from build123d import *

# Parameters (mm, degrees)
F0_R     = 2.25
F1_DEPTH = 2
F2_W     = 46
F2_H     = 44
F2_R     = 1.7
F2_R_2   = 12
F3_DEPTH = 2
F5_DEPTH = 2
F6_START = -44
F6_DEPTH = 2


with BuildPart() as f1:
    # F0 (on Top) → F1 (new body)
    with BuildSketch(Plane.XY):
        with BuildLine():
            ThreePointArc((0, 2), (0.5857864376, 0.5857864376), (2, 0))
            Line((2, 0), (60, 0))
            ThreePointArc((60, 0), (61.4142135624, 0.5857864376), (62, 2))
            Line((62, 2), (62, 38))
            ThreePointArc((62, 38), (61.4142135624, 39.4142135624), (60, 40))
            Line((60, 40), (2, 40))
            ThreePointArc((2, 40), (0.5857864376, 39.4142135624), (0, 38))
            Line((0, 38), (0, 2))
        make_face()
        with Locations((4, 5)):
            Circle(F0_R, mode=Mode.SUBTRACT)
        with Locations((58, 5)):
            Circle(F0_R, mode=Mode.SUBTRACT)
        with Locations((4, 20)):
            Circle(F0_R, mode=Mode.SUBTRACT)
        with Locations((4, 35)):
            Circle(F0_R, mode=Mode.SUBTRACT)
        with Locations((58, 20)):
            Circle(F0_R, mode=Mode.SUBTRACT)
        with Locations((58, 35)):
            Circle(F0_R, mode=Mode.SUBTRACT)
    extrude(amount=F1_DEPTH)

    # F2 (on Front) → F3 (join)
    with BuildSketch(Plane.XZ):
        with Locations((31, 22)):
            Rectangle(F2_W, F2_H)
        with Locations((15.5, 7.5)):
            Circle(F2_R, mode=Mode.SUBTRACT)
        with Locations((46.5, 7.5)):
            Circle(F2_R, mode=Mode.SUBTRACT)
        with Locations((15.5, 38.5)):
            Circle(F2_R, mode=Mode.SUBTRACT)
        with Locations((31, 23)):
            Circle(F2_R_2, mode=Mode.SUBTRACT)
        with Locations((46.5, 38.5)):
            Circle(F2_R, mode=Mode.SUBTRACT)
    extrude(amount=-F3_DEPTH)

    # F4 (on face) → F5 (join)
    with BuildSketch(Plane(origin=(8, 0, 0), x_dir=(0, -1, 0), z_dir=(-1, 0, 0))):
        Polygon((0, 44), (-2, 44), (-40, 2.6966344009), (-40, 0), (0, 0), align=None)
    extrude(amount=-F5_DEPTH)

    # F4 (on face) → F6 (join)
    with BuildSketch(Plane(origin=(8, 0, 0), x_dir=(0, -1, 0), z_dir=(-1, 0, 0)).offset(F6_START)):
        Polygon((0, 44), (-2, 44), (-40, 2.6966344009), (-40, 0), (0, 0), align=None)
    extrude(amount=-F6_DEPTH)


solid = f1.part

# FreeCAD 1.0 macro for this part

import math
import FreeCAD as App
import Part
import Sketcher
from FreeCAD import Vector
Q = App.Units.Quantity

doc = App.newDocument("Part")
body = doc.addObject("PartDesign::Body", "Body")

sketch1 = doc.addObject("Sketcher::SketchObject", "Sketch")
body.addObject(sketch1)
sketch1.AttachmentSupport = (doc.XY_Plane, [""])
sketch1.MapMode = "FlatFace"
sketch1.addGeometry([
    Part.ArcOfCircle(Part.Circle(Vector(2, 2, 0), Vector(0, 0, 1), 2), math.radians(180), math.radians(270)),
    Part.LineSegment(Vector(2, 0, 0), Vector(60, 0, 0)),
    Part.ArcOfCircle(Part.Circle(Vector(60, 2, 0), Vector(0, 0, 1), 2), math.radians(-90), math.radians(0)),
    Part.LineSegment(Vector(62, 2, 0), Vector(62, 38, 0)),
    Part.ArcOfCircle(Part.Circle(Vector(60, 38, 0), Vector(0, 0, 1), 2), math.radians(0), math.radians(90)),
    Part.LineSegment(Vector(60, 40, 0), Vector(2, 40, 0)),
    Part.ArcOfCircle(Part.Circle(Vector(2, 38, 0), Vector(0, 0, 1), 2), math.radians(90), math.radians(180)),
    Part.LineSegment(Vector(0, 38, 0), Vector(0, 2, 0)),
    Part.Circle(Vector(4, 5, 0), Vector(0, 0, 1), 2.2),
    Part.Circle(Vector(58, 5, 0), Vector(0, 0, 1), 2.2),
    Part.Circle(Vector(4, 20, 0), Vector(0, 0, 1), 2.2),
    Part.Circle(Vector(4, 35, 0), Vector(0, 0, 1), 2.2),
    Part.Circle(Vector(58, 20, 0), Vector(0, 0, 1), 2.2),
    Part.Circle(Vector(58, 35, 0), Vector(0, 0, 1), 2.2),
], False)
sketch1.addConstraint([
    Sketcher.Constraint("Tangent", 0, 2, 1, 1),
    Sketcher.Constraint("Tangent", 1, 2, 2, 1),
    Sketcher.Constraint("Tangent", 2, 2, 3, 1),
    Sketcher.Constraint("Tangent", 3, 2, 4, 1),
    Sketcher.Constraint("Tangent", 4, 2, 5, 1),
    Sketcher.Constraint("Tangent", 5, 2, 6, 1),
    Sketcher.Constraint("Tangent", 6, 2, 7, 1),
    Sketcher.Constraint("Tangent", 7, 2, 0, 1),
    Sketcher.Constraint("Horizontal", 1),
    Sketcher.Constraint("Vertical", 3),
    Sketcher.Constraint("Horizontal", 5),
    Sketcher.Constraint("Vertical", 7),
    Sketcher.Constraint("Equal", 0, 2),
    Sketcher.Constraint("Equal", 2, 4),
    Sketcher.Constraint("Equal", 4, 6),
    Sketcher.Constraint("Equal", 8, 9),
    Sketcher.Constraint("Equal", 9, 10),
    Sketcher.Constraint("Equal", 10, 11),
    Sketcher.Constraint("Equal", 11, 12),
    Sketcher.Constraint("Equal", 12, 13),
    Sketcher.Constraint("PointOnObject", 0, 2, -1),
    Sketcher.Constraint("PointOnObject", 6, 2, -2),
    Sketcher.Constraint("Horizontal", 8, 3, 9, 3),
    Sketcher.Constraint("Horizontal", 10, 3, 12, 3),
    Sketcher.Constraint("Horizontal", 11, 3, 13, 3),
    Sketcher.Constraint("Vertical", 8, 3, 10, 3),
    Sketcher.Constraint("Vertical", 10, 3, 11, 3),
    Sketcher.Constraint("Vertical", 9, 3, 12, 3),
    Sketcher.Constraint("Vertical", 12, 3, 13, 3),
    Sketcher.Constraint("Radius", 0, Q("2 mm")),
    Sketcher.Constraint("Diameter", 8, Q("4.5 mm")),
    Sketcher.Constraint("DistanceX", 1, 1, 1, 2, Q("58 mm")),
    Sketcher.Constraint("DistanceY", 3, 1, 3, 2, Q("36 mm")),
    Sketcher.Constraint("DistanceX", -1, 1, 8, 3, Q("4 mm")),
    Sketcher.Constraint("DistanceY", -1, 1, 8, 3, Q("5 mm")),
    Sketcher.Constraint("DistanceX", -1, 1, 9, 3, Q("58 mm")),
    Sketcher.Constraint("DistanceY", -1, 1, 10, 3, Q("20 mm")),
    Sketcher.Constraint("DistanceY", -1, 1, 11, 3, Q("35 mm")),
])
pad1 = doc.addObject("PartDesign::Pad", "Pad")
body.addObject(pad1)
pad1.Profile = sketch1
pad1.Length = 2

sketch2 = doc.addObject("Sketcher::SketchObject", "Sketch001")
body.addObject(sketch2)
sketch2.AttachmentSupport = (doc.XZ_Plane, [""])
sketch2.MapMode = "FlatFace"
sketch2.addGeometry([
    Part.LineSegment(Vector(8, 44, 0), Vector(8, 0, 0)),
    Part.LineSegment(Vector(8, 0, 0), Vector(54, 0, 0)),
    Part.LineSegment(Vector(54, 0, 0), Vector(54, 44, 0)),
    Part.LineSegment(Vector(54, 44, 0), Vector(8, 44, 0)),
    Part.Circle(Vector(15.5, 7.5, 0), Vector(0, 0, 1), 1.7),
    Part.Circle(Vector(46.5, 7.5, 0), Vector(0, 0, 1), 1.7),
    Part.Circle(Vector(15.5, 38.5, 0), Vector(0, 0, 1), 1.7),
    Part.Circle(Vector(31, 23, 0), Vector(0, 0, 1), 12),
    Part.Circle(Vector(46.5, 38.5, 0), Vector(0, 0, 1), 1.7),
], False)
sketch2.addConstraint([
    Sketcher.Constraint("Coincident", 0, 2, 1, 1),
    Sketcher.Constraint("Coincident", 1, 2, 2, 1),
    Sketcher.Constraint("Coincident", 2, 2, 3, 1),
    Sketcher.Constraint("Coincident", 3, 2, 0, 1),
    Sketcher.Constraint("Vertical", 0),
    Sketcher.Constraint("Horizontal", 1),
    Sketcher.Constraint("Vertical", 2),
    Sketcher.Constraint("Horizontal", 3),
    Sketcher.Constraint("Equal", 4, 5),
    Sketcher.Constraint("Equal", 5, 6),
    Sketcher.Constraint("Equal", 6, 8),
    Sketcher.Constraint("PointOnObject", 0, 2, -1),
    Sketcher.Constraint("Horizontal", 4, 3, 5, 3),
    Sketcher.Constraint("Horizontal", 6, 3, 8, 3),
    Sketcher.Constraint("Vertical", 4, 3, 6, 3),
    Sketcher.Constraint("Vertical", 5, 3, 8, 3),
    Sketcher.Constraint("Diameter", 7, Q("24 mm")),
    Sketcher.Constraint("Diameter", 4, Q("3.4 mm")),
    Sketcher.Constraint("DistanceX", 1, 1, 1, 2, Q("46 mm")),
    Sketcher.Constraint("DistanceY", 0, 2, 0, 1, Q("44 mm")),
    Sketcher.Constraint("DistanceX", -1, 1, 7, 3, Q("31 mm")),
    Sketcher.Constraint("DistanceY", -1, 1, 7, 3, Q("23 mm")),
    Sketcher.Constraint("DistanceX", -1, 1, 0, 2, Q("8 mm")),
    Sketcher.Constraint("DistanceX", 4, 3, 5, 3, Q("31 mm")),
    Sketcher.Constraint("DistanceY", 4, 3, 6, 3, Q("31 mm")),
    Sketcher.Constraint("DistanceX", -1, 1, 4, 3, Q("15.5 mm")),
    Sketcher.Constraint("DistanceY", -1, 1, 4, 3, Q("7.5 mm")),
])
pad2 = doc.addObject("PartDesign::Pad", "Pad001")
body.addObject(pad2)
pad2.Profile = sketch2
pad2.Length = 2
pad2.Reversed = True

sketch3 = doc.addObject("Sketcher::SketchObject", "Sketch002")
body.addObject(sketch3)
sketch3.AttachmentSupport = (doc.YZ_Plane, [""])
sketch3.MapMode = "FlatFace"
sketch3.AttachmentOffset = App.Placement(Vector(0, 0, 8), App.Rotation())
sketch3.addGeometry([
    Part.LineSegment(Vector(0, 44, 0), Vector(2, 44, 0)),
    Part.LineSegment(Vector(2, 44, 0), Vector(40, 2.7, 0)),
    Part.LineSegment(Vector(40, 2.7, 0), Vector(40, 0, 0)),
    Part.LineSegment(Vector(40, 0, 0), Vector(0, 0, 0)),
    Part.LineSegment(Vector(0, 0, 0), Vector(0, 44, 0)),
], False)
sketch3.addConstraint([
    Sketcher.Constraint("Coincident", 0, 2, 1, 1),
    Sketcher.Constraint("Coincident", 1, 2, 2, 1),
    Sketcher.Constraint("Coincident", 2, 2, 3, 1),
    Sketcher.Constraint("Coincident", 3, 2, 4, 1),
    Sketcher.Constraint("Coincident", 4, 2, 0, 1),
    Sketcher.Constraint("Horizontal", 0),
    Sketcher.Constraint("Vertical", 2),
    Sketcher.Constraint("Horizontal", 3),
    Sketcher.Constraint("Vertical", 4),
    Sketcher.Constraint("Coincident", 3, 2, -1, 1),
    Sketcher.Constraint("DistanceX", 0, 1, 0, 2, Q("2 mm")),
    Sketcher.Constraint("DistanceX", 3, 2, 3, 1, Q("40 mm")),
    Sketcher.Constraint("DistanceY", 4, 1, 4, 2, Q("44 mm")),
    Sketcher.Constraint("DistanceY", 2, 2, 2, 1, Q("2.696634 mm")),
])
pad3 = doc.addObject("PartDesign::Pad", "Pad002")
body.addObject(pad3)
pad3.Profile = sketch3
pad3.Length = 2

sketch4 = doc.addObject("Sketcher::SketchObject", "Sketch003")
body.addObject(sketch4)
sketch4.AttachmentSupport = (doc.YZ_Plane, [""])
sketch4.MapMode = "FlatFace"
sketch4.AttachmentOffset = App.Placement(Vector(0, 0, 52), App.Rotation())
sketch4.addGeometry([
    Part.LineSegment(Vector(0, 44, 0), Vector(2, 44, 0)),
    Part.LineSegment(Vector(2, 44, 0), Vector(40, 2.7, 0)),
    Part.LineSegment(Vector(40, 2.7, 0), Vector(40, 0, 0)),
    Part.LineSegment(Vector(40, 0, 0), Vector(0, 0, 0)),
    Part.LineSegment(Vector(0, 0, 0), Vector(0, 44, 0)),
], False)
sketch4.addConstraint([
    Sketcher.Constraint("Coincident", 0, 2, 1, 1),
    Sketcher.Constraint("Coincident", 1, 2, 2, 1),
    Sketcher.Constraint("Coincident", 2, 2, 3, 1),
    Sketcher.Constraint("Coincident", 3, 2, 4, 1),
    Sketcher.Constraint("Coincident", 4, 2, 0, 1),
    Sketcher.Constraint("Horizontal", 0),
    Sketcher.Constraint("Vertical", 2),
    Sketcher.Constraint("Horizontal", 3),
    Sketcher.Constraint("Vertical", 4),
    Sketcher.Constraint("Coincident", 3, 2, -1, 1),
    Sketcher.Constraint("DistanceX", 0, 1, 0, 2, Q("2 mm")),
    Sketcher.Constraint("DistanceX", 3, 2, 3, 1, Q("40 mm")),
    Sketcher.Constraint("DistanceY", 4, 1, 4, 2, Q("44 mm")),
    Sketcher.Constraint("DistanceY", 2, 2, 2, 1, Q("2.696634 mm")),
])
pad4 = doc.addObject("PartDesign::Pad", "Pad003")
body.addObject(pad4)
pad4.Profile = sketch4
pad4.Length = 2

doc.recompute()
